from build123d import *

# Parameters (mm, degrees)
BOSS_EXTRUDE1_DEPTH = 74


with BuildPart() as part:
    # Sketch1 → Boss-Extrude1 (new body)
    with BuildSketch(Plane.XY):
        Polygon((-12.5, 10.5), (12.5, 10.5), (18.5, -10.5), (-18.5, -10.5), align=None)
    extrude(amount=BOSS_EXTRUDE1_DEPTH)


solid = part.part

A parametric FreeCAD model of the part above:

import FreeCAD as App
import Part
import Sketcher
Q = App.Units.Quantity

doc = App.newDocument("Part")
body = doc.addObject("PartDesign::Body", "Body")

# Sketch on XY plane
sketch1 = body.newObject("Sketcher::SketchObject", "Sketch")
sketch1.AttachmentSupport = (doc.getObject("XY_Plane"), [""])
sketch1.MapMode = "FlatFace"
sketch1.addGeometry(Part.LineSegment(App.Vector(12.5, 10.5, 0), App.Vector(-12.5, 10.5, 0)), False)
sketch1.addGeometry(Part.LineSegment(App.Vector(-12.5, 10.5, 0), App.Vector(-18.5, -10.5, 0)), False)
sketch1.addGeometry(Part.LineSegment(App.Vector(-18.5, -10.5, 0), App.Vector(18.5, -10.5, 0)), False)
sketch1.addGeometry(Part.LineSegment(App.Vector(18.5, -10.5, 0), App.Vector(12.5, 10.5, 0)), False)
sketch1.addConstraint(Sketcher.Constraint("Coincident", 0, 2, 1, 1))
sketch1.addConstraint(Sketcher.Constraint("Coincident", 1, 2, 2, 1))
sketch1.addConstraint(Sketcher.Constraint("Coincident", 2, 2, 3, 1))
sketch1.addConstraint(Sketcher.Constraint("Coincident", 3, 2, 0, 1))
sketch1.addConstraint(Sketcher.Constraint("Horizontal", 0))
sketch1.addConstraint(Sketcher.Constraint("Horizontal", 2))
sketch1.addConstraint(Sketcher.Constraint("Equal", 1, 3))
sketch1.addConstraint(Sketcher.Constraint("DistanceX", 0, 2, 0, 1, Q("25 mm")))
sketch1.addConstraint(Sketcher.Constraint("DistanceX", 2, 1, 2, 2, Q("37 mm")))
sketch1.addConstraint(Sketcher.Constraint("DistanceY", 1, 2, 0, 2, Q("21 mm")))
sketch1.addConstraint(Sketcher.Constraint("DistanceX", 0, 2, -1, 1, Q("12.5 mm")))
sketch1.addConstraint(Sketcher.Constraint("DistanceY", -1, 1, 0, 2, Q("10.5 mm")))
pad1 = body.newObject("PartDesign::Pad", "Pad")
pad1.Profile = sketch1
pad1.Length = 74

doc.recompute()
